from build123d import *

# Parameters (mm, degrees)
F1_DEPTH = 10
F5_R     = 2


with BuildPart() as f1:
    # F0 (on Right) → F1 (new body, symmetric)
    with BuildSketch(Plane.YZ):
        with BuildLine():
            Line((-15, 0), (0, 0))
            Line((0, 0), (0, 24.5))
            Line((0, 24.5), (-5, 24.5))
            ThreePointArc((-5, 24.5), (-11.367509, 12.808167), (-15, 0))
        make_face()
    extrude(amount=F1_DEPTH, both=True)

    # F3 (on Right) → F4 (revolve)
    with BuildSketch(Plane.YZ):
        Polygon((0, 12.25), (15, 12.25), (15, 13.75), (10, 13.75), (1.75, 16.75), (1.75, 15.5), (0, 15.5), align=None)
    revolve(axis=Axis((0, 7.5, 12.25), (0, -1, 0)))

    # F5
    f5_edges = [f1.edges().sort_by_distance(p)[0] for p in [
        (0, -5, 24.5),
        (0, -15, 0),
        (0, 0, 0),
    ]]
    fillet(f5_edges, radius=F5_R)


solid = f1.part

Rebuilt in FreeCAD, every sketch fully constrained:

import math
import FreeCAD as App
import Part
import Sketcher

V = App.Vector
Q = App.Units.Quantity


def edges_at(feature, points):
    """Names of the edges that pass closest to the given points."""
    edges = feature.Shape.Edges
    near = lambda p: min(range(len(edges)), key=lambda i: edges[i].distToShape(Part.Vertex(*p))[0])
    return sorted({f"Edge{near(p) + 1}" for p in points})

doc = App.newDocument("Part")
body = doc.addObject("PartDesign::Body", "Body")

sketch1 = body.newObject("Sketcher::SketchObject", "Sketch")
sketch1.AttachmentSupport = (doc.getObject("YZ_Plane"), [""])
sketch1.MapMode = "FlatFace"
sketch1.addGeometry([
    Part.LineSegment(V(-15, 0, 0), V(0, 0, 0)),
    Part.LineSegment(V(0, 0, 0), V(0, 24, 0)),
    Part.LineSegment(V(0, 24, 0), V(-5, 24, 0)),
    Part.ArcOfCircle(Part.Circle(V(44, -10, 0), V(0, 0, 1), 60), math.radians(145), math.radians(171)),
], False)
sketch1.addConstraint([
    Sketcher.Constraint("Coincident", 0, 2, 1, 1),
    Sketcher.Constraint("Coincident", 1, 2, 2, 1),
    Sketcher.Constraint("Coincident", 2, 2, 3, 1),
    Sketcher.Constraint("Coincident", 3, 2, 0, 1),
    Sketcher.Constraint("Horizontal", 0),
    Sketcher.Constraint("Vertical", 1),
    Sketcher.Constraint("Horizontal", 2),
    Sketcher.Constraint("Coincident", 0, 2, -1, 1),
    Sketcher.Constraint("DistanceX", 0, 1, 0, 2, Q("15 mm")),
    Sketcher.Constraint("DistanceX", 2, 2, 2, 1, Q("5 mm")),
    Sketcher.Constraint("DistanceY", 1, 1, 1, 2, Q("24.5 mm")),
    Sketcher.Constraint("Radius", 3, Q("59.999992 mm")),
])
pad1 = body.newObject("PartDesign::Pad", "Pad")
pad1.Profile = sketch1
pad1.Length = 20
pad1.Midplane = True

sketch2 = body.newObject("Sketcher::SketchObject", "Sketch001")
sketch2.AttachmentSupport = (doc.getObject("YZ_Plane"), [""])
sketch2.MapMode = "FlatFace"
sketch2.addGeometry([
    Part.LineSegment(V(0, 12.2, 0), V(15, 12.2, 0)),
    Part.LineSegment(V(15, 12.2, 0), V(15, 13.8, 0)),
    Part.LineSegment(V(15, 13.8, 0), V(10, 13.8, 0)),
    Part.LineSegment(V(10, 13.8, 0), V(1.8, 16.8, 0)),
    Part.LineSegment(V(1.8, 16.8, 0), V(1.8, 15.5, 0)),
    Part.LineSegment(V(1.8, 15.5, 0), V(0, 15.5, 0)),
    Part.LineSegment(V(0, 15.5, 0), V(0, 12.2, 0)),
], False)
sketch2.addGeometry(Part.LineSegment(V(15, 12.2, 0), V(0, 12.2, 0)), True)
sketch2.addConstraint([
    Sketcher.Constraint("Coincident", 0, 2, 1, 1),
    Sketcher.Constraint("Coincident", 1, 2, 2, 1),
    Sketcher.Constraint("Coincident", 2, 2, 3, 1),
    Sketcher.Constraint("Coincident", 3, 2, 4, 1),
    Sketcher.Constraint("Coincident", 4, 2, 5, 1),
    Sketcher.Constraint("Coincident", 5, 2, 6, 1),
    Sketcher.Constraint("Coincident", 6, 2, 0, 1),
    Sketcher.Constraint("Horizontal", 0),
    Sketcher.Constraint("Vertical", 1),
    Sketcher.Constraint("Horizontal", 2),
    Sketcher.Constraint("Vertical", 4),
    Sketcher.Constraint("Horizontal", 5),
    Sketcher.Constraint("Vertical", 6),
    Sketcher.Constraint("Horizontal", 7),
    Sketcher.Constraint("Coincident", 7, 1, 0, 2),
    Sketcher.Constraint("PointOnObject", 5, 2, -2),
    Sketcher.Constraint("PointOnObject", 7, 2, -2),
    Sketcher.Constraint("DistanceX", 0, 1, 0, 2, Q("15 mm")),
    Sketcher.Constraint("DistanceX", 2, 2, 2, 1, Q("5 mm")),
    Sketcher.Constraint("DistanceY", 1, 1, 1, 2, Q("1.5 mm")),
    Sketcher.Constraint("DistanceY", 2, 2, 3, 2, Q("3 mm")),
    Sketcher.Constraint("DistanceX", 5, 2, 5, 1, Q("1.75 mm")),
    Sketcher.Constraint("DistanceY", 4, 2, 4, 1, Q("1.25 mm")),
    Sketcher.Constraint("DistanceY", -1, 1, 4, 2, Q("15.5 mm")),
])
revolution = body.newObject("PartDesign::Revolution", "Revolution")
revolution.Profile = sketch2
revolution.ReferenceAxis = (sketch2, ["Axis0"])
revolution.Angle = 360
doc.recompute()

fillet = body.newObject("PartDesign::Fillet", "Fillet")
fillet.Base = (revolution, edges_at(revolution, [(0, -5, 24.5), (0, -15, 0), (0, 0, 0)]))
fillet.Radius = 2

doc.recompute()
